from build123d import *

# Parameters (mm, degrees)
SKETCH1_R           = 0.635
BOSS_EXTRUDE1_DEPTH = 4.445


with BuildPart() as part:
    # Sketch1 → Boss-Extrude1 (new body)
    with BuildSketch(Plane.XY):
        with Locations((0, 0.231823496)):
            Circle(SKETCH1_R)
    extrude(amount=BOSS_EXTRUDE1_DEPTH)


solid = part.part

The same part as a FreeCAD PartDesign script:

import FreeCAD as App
import Part
import Sketcher
from FreeCAD import Vector
Q = App.Units.Quantity

doc = App.newDocument("Part")
body = doc.addObject("PartDesign::Body", "Body")

sketch1 = body.newObject("Sketcher::SketchObject", "Sketch")
sketch1.AttachmentSupport = (doc.getObject("XY_Plane"), [""])
sketch1.MapMode = "FlatFace"
sketch1.addGeometry(Part.Circle(Vector(0, 0.2, 0), Vector(0, 0, 1), 0.6), False)
sketch1.addConstraint(Sketcher.Constraint("PointOnObject", 0, 3, -2))
sketch1.addConstraint(Sketcher.Constraint("Diameter", 0, Q("0.05 in")))
sketch1.addConstraint(Sketcher.Constraint("DistanceY", -1, 1, 0, 3, 0.231823))
pad1 = body.newObject("PartDesign::Pad", "Pad")
pad1.Profile = sketch1
pad1.Length = Q("0.175 in")

doc.recompute()
